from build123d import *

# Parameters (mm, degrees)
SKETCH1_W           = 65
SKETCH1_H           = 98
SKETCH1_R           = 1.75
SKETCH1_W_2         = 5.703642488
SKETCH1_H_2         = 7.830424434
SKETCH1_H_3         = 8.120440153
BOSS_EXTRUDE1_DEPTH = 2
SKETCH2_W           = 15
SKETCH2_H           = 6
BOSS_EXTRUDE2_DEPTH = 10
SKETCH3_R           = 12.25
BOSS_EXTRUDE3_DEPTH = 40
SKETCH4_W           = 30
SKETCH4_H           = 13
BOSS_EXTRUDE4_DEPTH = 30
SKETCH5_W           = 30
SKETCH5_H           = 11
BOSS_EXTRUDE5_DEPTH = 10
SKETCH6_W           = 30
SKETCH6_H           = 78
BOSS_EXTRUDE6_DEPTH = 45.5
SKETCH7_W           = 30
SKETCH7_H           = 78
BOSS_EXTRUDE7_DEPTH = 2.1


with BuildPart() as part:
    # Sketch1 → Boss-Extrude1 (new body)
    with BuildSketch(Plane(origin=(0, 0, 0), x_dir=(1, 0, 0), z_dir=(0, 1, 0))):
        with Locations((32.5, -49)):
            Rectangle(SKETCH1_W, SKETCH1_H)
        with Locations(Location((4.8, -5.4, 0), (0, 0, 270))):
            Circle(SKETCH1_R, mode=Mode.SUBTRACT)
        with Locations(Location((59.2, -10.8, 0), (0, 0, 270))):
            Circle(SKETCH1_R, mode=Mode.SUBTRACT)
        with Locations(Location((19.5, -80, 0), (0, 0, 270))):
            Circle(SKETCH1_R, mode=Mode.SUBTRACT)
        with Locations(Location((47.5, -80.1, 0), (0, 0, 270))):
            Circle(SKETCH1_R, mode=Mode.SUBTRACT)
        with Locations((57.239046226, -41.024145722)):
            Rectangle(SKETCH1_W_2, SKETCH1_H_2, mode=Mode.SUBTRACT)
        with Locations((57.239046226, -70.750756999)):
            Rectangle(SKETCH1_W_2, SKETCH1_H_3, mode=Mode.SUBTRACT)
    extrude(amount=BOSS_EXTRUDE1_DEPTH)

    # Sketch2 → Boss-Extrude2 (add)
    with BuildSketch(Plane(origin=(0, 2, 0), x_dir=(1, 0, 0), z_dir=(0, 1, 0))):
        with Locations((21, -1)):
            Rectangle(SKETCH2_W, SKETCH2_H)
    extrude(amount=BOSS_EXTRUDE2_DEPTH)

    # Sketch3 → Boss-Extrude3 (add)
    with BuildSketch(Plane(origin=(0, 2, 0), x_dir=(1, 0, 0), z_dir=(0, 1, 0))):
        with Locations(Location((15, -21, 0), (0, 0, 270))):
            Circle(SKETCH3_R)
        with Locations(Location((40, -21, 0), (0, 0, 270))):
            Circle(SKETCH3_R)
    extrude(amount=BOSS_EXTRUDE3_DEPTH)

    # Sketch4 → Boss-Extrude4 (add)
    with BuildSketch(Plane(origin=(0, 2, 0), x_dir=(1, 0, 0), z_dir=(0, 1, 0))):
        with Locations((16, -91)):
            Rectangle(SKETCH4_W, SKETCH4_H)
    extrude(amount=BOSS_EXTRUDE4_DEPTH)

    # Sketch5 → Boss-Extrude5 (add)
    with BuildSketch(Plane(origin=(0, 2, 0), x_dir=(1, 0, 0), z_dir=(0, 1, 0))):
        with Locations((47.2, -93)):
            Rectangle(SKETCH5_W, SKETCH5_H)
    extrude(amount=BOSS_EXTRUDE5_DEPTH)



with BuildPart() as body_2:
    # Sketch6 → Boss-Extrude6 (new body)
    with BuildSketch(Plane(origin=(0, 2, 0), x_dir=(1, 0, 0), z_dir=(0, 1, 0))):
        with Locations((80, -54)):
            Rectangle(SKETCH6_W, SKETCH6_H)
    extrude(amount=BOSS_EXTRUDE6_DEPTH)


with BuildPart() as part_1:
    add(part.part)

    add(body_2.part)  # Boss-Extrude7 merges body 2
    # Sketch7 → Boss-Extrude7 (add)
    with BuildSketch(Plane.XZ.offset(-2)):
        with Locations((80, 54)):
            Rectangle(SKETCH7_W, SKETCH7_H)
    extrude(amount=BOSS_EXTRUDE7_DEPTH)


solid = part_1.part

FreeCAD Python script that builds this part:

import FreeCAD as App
import Part
import Sketcher

V = App.Vector


def add_polygon(sketch, points):
    """Adds a closed chain of lines whose ends are joined by coincident constraints."""
    first, n = sketch.GeometryCount, len(points)
    for a, b in zip(points, points[1:] + points[:1]):
        sketch.addGeometry(Part.LineSegment(App.Vector(*a, 0), App.Vector(*b, 0)), False)
    for i in range(n):
        sketch.addConstraint(Sketcher.Constraint("Coincident", first + i, 2, first + (i + 1) % n, 1))

doc = App.newDocument("Part")
body = doc.addObject("PartDesign::Body", "Body")

sketch1 = doc.addObject("Sketcher::SketchObject", "Sketch")
body.addObject(sketch1)
sketch1.AttachmentSupport = (doc.XZ_Plane, [""])
sketch1.MapMode = "FlatFace"
add_polygon(sketch1, [(0, 0), (0, 98), (65, 98), (65, 0)])
sketch1.addGeometry(Part.Circle(V(19.5, 80, 0), V(0, 0, 1), 1.8), False)
sketch1.addGeometry(Part.Circle(V(47.5, 80.1, 0), V(0, 0, 1), 1.8), False)
add_polygon(sketch1, [(60.1, 74.8), (54.4, 74.8), (54.4, 66.7), (60.1, 66.7)])
sketch1.addGeometry(Part.Circle(V(4.8, 5.4, 0), V(0, 0, 1), 1.8), False)
add_polygon(sketch1, [(60.1, 44.9), (54.4, 44.9), (54.4, 37.1), (60.1, 37.1)])
sketch1.addGeometry(Part.Circle(V(59.2, 10.8, 0), V(0, 0, 1), 1.8), False)
sketch1.addConstraint([
    Sketcher.Constraint("Vertical", 0),
    Sketcher.Constraint("Horizontal", 1),
    Sketcher.Constraint("Vertical", 2),
    Sketcher.Constraint("Horizontal", 3),
    Sketcher.Constraint("Horizontal", 6),
    Sketcher.Constraint("Vertical", 7),
    Sketcher.Constraint("Horizontal", 8),
    Sketcher.Constraint("Vertical", 9),
    Sketcher.Constraint("Horizontal", 11),
    Sketcher.Constraint("Vertical", 12),
    Sketcher.Constraint("Horizontal", 13),
    Sketcher.Constraint("Vertical", 14),
    Sketcher.Constraint("Coincident", 3, 2, -1, 1),
    Sketcher.Constraint("Equal", 4, 5),
    Sketcher.Constraint("Equal", 5, 10),
    Sketcher.Constraint("Equal", 10, 15),
    Sketcher.Constraint("Vertical", 7, 2, 11, 2),
    Sketcher.Constraint("Vertical", 9, 2, 13, 2),
    Sketcher.Constraint("Diameter", 4, 3.5),
    Sketcher.Constraint("DistanceX", 1, 1, 1, 2, 65.0),
    Sketcher.Constraint("DistanceY", 0, 1, 0, 2, 98.0),
    Sketcher.Constraint("DistanceY", -1, 1, 4, 3, 80.0),
    Sketcher.Constraint("DistanceX", 4, 3, 5, 3, 28.0),
    Sketcher.Constraint("DistanceX", -1, 1, 4, 3, 19.5),
    Sketcher.Constraint("DistanceY", -1, 1, 5, 3, 80.1),
    Sketcher.Constraint("DistanceX", -1, 1, 10, 3, 4.8),
    Sketcher.Constraint("DistanceY", -1, 1, 10, 3, 5.4),
    Sketcher.Constraint("DistanceX", -1, 1, 15, 3, 59.2),
    Sketcher.Constraint("DistanceY", -1, 1, 15, 3, 10.8),
    Sketcher.Constraint("DistanceY", 7, 2, 7, 1, 8.12044),
    Sketcher.Constraint("DistanceX", 6, 2, 6, 1, 5.703642),
    Sketcher.Constraint("DistanceY", 12, 2, 12, 1, 7.830424),
    Sketcher.Constraint("DistanceY", 11, 2, 7, 2, 21.751179),
    Sketcher.Constraint("DistanceX", -1, 1, 6, 2, 54.387225),
    Sketcher.Constraint("DistanceY", -1, 1, 6, 2, 74.810977),
])
pad1 = doc.addObject("PartDesign::Pad", "Pad")
body.addObject(pad1)
pad1.Profile = sketch1
pad1.Length = 2
pad1.Reversed = True

sketch2 = doc.addObject("Sketcher::SketchObject", "Sketch001")
body.addObject(sketch2)
sketch2.AttachmentSupport = (doc.XZ_Plane, [""])
sketch2.MapMode = "FlatFace"
sketch2.AttachmentOffset = App.Placement(V(0, 0, -2), App.Rotation())
add_polygon(sketch2, [(14, -2), (14, 4), (28, 4), (28, -2)])
sketch2.addConstraint([
    Sketcher.Constraint("Vertical", 0),
    Sketcher.Constraint("Horizontal", 1),
    Sketcher.Constraint("Vertical", 2),
    Sketcher.Constraint("Horizontal", 3),
    Sketcher.Constraint("DistanceX", 1, 1, 1, 2, 15.0),
    Sketcher.Constraint("DistanceY", 0, 1, 0, 2, 6.0),
    Sketcher.Constraint("DistanceY", -1, 1, 0, 2, 4.0),
    Sketcher.Constraint("DistanceX", -1, 1, 0, 2, 13.5),
])
pad2 = doc.addObject("PartDesign::Pad", "Pad001")
body.addObject(pad2)
pad2.Profile = sketch2
pad2.Length = 10
pad2.Reversed = True

sketch3 = doc.addObject("Sketcher::SketchObject", "Sketch002")
body.addObject(sketch3)
sketch3.AttachmentSupport = (doc.XZ_Plane, [""])
sketch3.MapMode = "FlatFace"
sketch3.AttachmentOffset = App.Placement(V(0, 0, -2), App.Rotation())
sketch3.addGeometry([
    Part.Circle(V(15, 21, 0), V(0, 0, 1), 12),
    Part.Circle(V(40, 21, 0), V(0, 0, 1), 12),
], False)
sketch3.addConstraint([
    Sketcher.Constraint("Equal", 0, 1),
    Sketcher.Constraint("Horizontal", 0, 3, 1, 3),
    Sketcher.Constraint("Diameter", 0, 24.5),
    Sketcher.Constraint("DistanceX", -1, 1, 0, 3, 15.0),
    Sketcher.Constraint("DistanceY", -1, 1, 0, 3, 21.0),
    Sketcher.Constraint("DistanceX", -1, 1, 1, 3, 40.0),
])
pad3 = doc.addObject("PartDesign::Pad", "Pad002")
body.addObject(pad3)
pad3.Profile = sketch3
pad3.Length = 40
pad3.Reversed = True

sketch4 = doc.addObject("Sketcher::SketchObject", "Sketch003")
body.addObject(sketch4)
sketch4.AttachmentSupport = (doc.XZ_Plane, [""])
sketch4.MapMode = "FlatFace"
sketch4.AttachmentOffset = App.Placement(V(0, 0, -2), App.Rotation())
add_polygon(sketch4, [(1, 84), (1, 98), (31, 98), (31, 84)])
sketch4.addConstraint([
    Sketcher.Constraint("Vertical", 0),
    Sketcher.Constraint("Horizontal", 1),
    Sketcher.Constraint("Vertical", 2),
    Sketcher.Constraint("Horizontal", 3),
    Sketcher.Constraint("DistanceX", 1, 1, 1, 2, 30.0),
    Sketcher.Constraint("DistanceY", 0, 1, 0, 2, 13.0),
    Sketcher.Constraint("DistanceX", -1, 1, 0, 2, 1.0),
    Sketcher.Constraint("DistanceY", -1, 1, 0, 2, 97.5),
])
pad4 = doc.addObject("PartDesign::Pad", "Pad003")
body.addObject(pad4)
pad4.Profile = sketch4
pad4.Length = 30
pad4.Reversed = True

sketch5 = doc.addObject("Sketcher::SketchObject", "Sketch004")
body.addObject(sketch5)
sketch5.AttachmentSupport = (doc.XZ_Plane, [""])
sketch5.MapMode = "FlatFace"
sketch5.AttachmentOffset = App.Placement(V(0, 0, -2), App.Rotation())
add_polygon(sketch5, [(32, 88), (32, 98), (62, 98), (62, 88)])
sketch5.addConstraint([
    Sketcher.Constraint("Vertical", 0),
    Sketcher.Constraint("Horizontal", 1),
    Sketcher.Constraint("Vertical", 2),
    Sketcher.Constraint("Horizontal", 3),
    Sketcher.Constraint("DistanceX", 1, 1, 1, 2, 30.0),
    Sketcher.Constraint("DistanceY", 0, 1, 0, 2, 11.0),
    Sketcher.Constraint("DistanceX", -1, 1, 0, 2, 32.2),
    Sketcher.Constraint("DistanceY", -1, 1, 0, 2, 98.5),
])
pad5 = doc.addObject("PartDesign::Pad", "Pad004")
body.addObject(pad5)
pad5.Profile = sketch5
pad5.Length = 10
pad5.Reversed = True
body2 = doc.addObject("PartDesign::Body", "Body001")

sketch6 = doc.addObject("Sketcher::SketchObject", "Sketch005")
body2.addObject(sketch6)
sketch6.AttachmentSupport = (doc.getObject("XZ_Plane001"), [""])
sketch6.MapMode = "FlatFace"
sketch6.AttachmentOffset = App.Placement(V(0, 0, -2), App.Rotation())
add_polygon(sketch6, [(65, 15), (65, 93), (95, 93), (95, 15)])
sketch6.addConstraint([
    Sketcher.Constraint("Vertical", 0),
    Sketcher.Constraint("Horizontal", 1),
    Sketcher.Constraint("Vertical", 2),
    Sketcher.Constraint("Horizontal", 3),
    Sketcher.Constraint("DistanceX", 1, 1, 1, 2, 30.0),
    Sketcher.Constraint("DistanceY", 0, 1, 0, 2, 78.0),
    Sketcher.Constraint("DistanceX", -1, 1, 0, 2, 65.0),
    Sketcher.Constraint("DistanceY", -1, 1, 0, 2, 93.0),
])
pad6 = doc.addObject("PartDesign::Pad", "Pad005")
body2.addObject(pad6)
pad6.Profile = sketch6
pad6.Length = 45.5
pad6.Reversed = True
body.AllowCompound = True
doc.recompute()

boolean = doc.addObject("PartDesign::Boolean", "Boolean")
body.addObject(boolean)
boolean.Type = "Fuse"
boolean.addObjects([body2])

sketch7 = doc.addObject("Sketcher::SketchObject", "Sketch006")
body.addObject(sketch7)
sketch7.AttachmentSupport = (doc.XZ_Plane, [""])
sketch7.MapMode = "FlatFace"
sketch7.AttachmentOffset = App.Placement(V(0, 0, -2), App.Rotation())
add_polygon(sketch7, [(65, 93), (65, 15), (95, 15), (95, 93)])
sketch7.addConstraint([
    Sketcher.Constraint("Vertical", 0),
    Sketcher.Constraint("Horizontal", 1),
    Sketcher.Constraint("Vertical", 2),
    Sketcher.Constraint("Horizontal", 3),
    Sketcher.Constraint("DistanceX", 1, 1, 1, 2, 30.0),
    Sketcher.Constraint("DistanceY", 0, 2, 0, 1, 78.0),
    Sketcher.Constraint("DistanceX", -1, 1, 0, 2, 65.0),
    Sketcher.Constraint("DistanceY", -1, 1, 0, 2, 15.0),
])
pad7 = doc.addObject("PartDesign::Pad", "Pad006")
body.addObject(pad7)
pad7.Profile = sketch7
pad7.Length = 2.1

doc.recompute()
